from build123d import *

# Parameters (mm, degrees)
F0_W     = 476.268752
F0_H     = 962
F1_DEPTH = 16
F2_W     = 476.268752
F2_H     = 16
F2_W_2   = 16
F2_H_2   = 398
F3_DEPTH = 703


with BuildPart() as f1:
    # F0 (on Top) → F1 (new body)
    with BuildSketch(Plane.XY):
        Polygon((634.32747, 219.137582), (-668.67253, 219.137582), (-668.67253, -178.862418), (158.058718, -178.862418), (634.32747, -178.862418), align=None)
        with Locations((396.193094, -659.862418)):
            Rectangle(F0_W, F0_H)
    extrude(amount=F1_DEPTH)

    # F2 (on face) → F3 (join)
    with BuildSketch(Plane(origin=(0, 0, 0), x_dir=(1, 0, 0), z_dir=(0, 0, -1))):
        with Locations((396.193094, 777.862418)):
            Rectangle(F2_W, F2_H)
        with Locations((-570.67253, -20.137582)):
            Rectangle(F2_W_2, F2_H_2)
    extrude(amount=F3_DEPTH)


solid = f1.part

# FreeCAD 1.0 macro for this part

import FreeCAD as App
import Part
import Sketcher
from FreeCAD import Vector
Q = App.Units.Quantity


def add_polygon(sketch, points):
    """Adds a closed chain of lines whose ends are joined by coincident constraints."""
    first, n = sketch.GeometryCount, len(points)
    for a, b in zip(points, points[1:] + points[:1]):
        sketch.addGeometry(Part.LineSegment(App.Vector(*a, 0), App.Vector(*b, 0)), False)
    for i in range(n):
        sketch.addConstraint(Sketcher.Constraint("Coincident", first + i, 2, first + (i + 1) % n, 1))

doc = App.newDocument("Part")
body = doc.addObject("PartDesign::Body", "Body")

# Sketch on XY plane
sketch1 = doc.addObject("Sketcher::SketchObject", "Sketch")
body.addObject(sketch1)
sketch1.AttachmentSupport = (doc.XY_Plane, [""])
sketch1.MapMode = "FlatFace"
add_polygon(sketch1, [(634, 219), (-669, 219), (-669, -179), (158, -179), (158, -1141), (634, -1141)])  # lines 0-5
sketch1.addConstraint([
    Sketcher.Constraint("Horizontal", 0),
    Sketcher.Constraint("Vertical", 1),
    Sketcher.Constraint("Horizontal", 2),
    Sketcher.Constraint("Vertical", 3),
    Sketcher.Constraint("Horizontal", 4),
    Sketcher.Constraint("Vertical", 5),
    Sketcher.Constraint("DistanceX", 0, 2, 0, 1, Q("1303 mm")),
    Sketcher.Constraint("DistanceY", 1, 2, 1, 1, Q("398 mm")),
    Sketcher.Constraint("DistanceY", 3, 2, 3, 1, Q("962 mm")),
    Sketcher.Constraint("DistanceX", 2, 1, 2, 2, Q("826.731248 mm")),
    Sketcher.Constraint("DistanceX", 0, 2, -1, 1, Q("668.67253 mm")),
    Sketcher.Constraint("DistanceY", -1, 1, 0, 2, Q("219.137582 mm")),
])
pad1 = doc.addObject("PartDesign::Pad", "Pad")
body.addObject(pad1)
pad1.Profile = sketch1
pad1.Length = 16

# Sketch on XY plane
sketch2 = doc.addObject("Sketcher::SketchObject", "Sketch001")
body.addObject(sketch2)
sketch2.AttachmentSupport = (doc.XY_Plane, [""])
sketch2.MapMode = "FlatFace"
add_polygon(sketch2, [(158, -786), (158, -770), (634, -770), (634, -786)])  # lines 0-3
add_polygon(sketch2, [(-579, -179), (-579, 219), (-563, 219), (-563, -179)])  # lines 4-7
sketch2.addConstraint([
    Sketcher.Constraint("Vertical", 0),
    Sketcher.Constraint("Horizontal", 1),
    Sketcher.Constraint("Vertical", 2),
    Sketcher.Constraint("Horizontal", 3),
    Sketcher.Constraint("Vertical", 4),
    Sketcher.Constraint("Horizontal", 5),
    Sketcher.Constraint("Vertical", 6),
    Sketcher.Constraint("Horizontal", 7),
    Sketcher.Constraint("Equal", 7, 0),
    Sketcher.Constraint("DistanceX", 5, 1, 5, 2, Q("16 mm")),
    Sketcher.Constraint("DistanceY", 4, 1, 4, 2, Q("398 mm")),
    Sketcher.Constraint("DistanceY", 0, 2, 4, 2, Q("989 mm")),
    Sketcher.Constraint("DistanceX", 4, 2, 1, 2, Q("1213 mm")),
    Sketcher.Constraint("DistanceX", 1, 1, 1, 2, Q("476.268752 mm")),
    Sketcher.Constraint("DistanceX", -1, 1, 0, 2, Q("158.058718 mm")),
    Sketcher.Constraint("DistanceY", 0, 2, -1, 1, Q("769.862418 mm")),
])
pad2 = doc.addObject("PartDesign::Pad", "Pad001")
body.addObject(pad2)
pad2.Profile = sketch2
pad2.Length = 703
pad2.Reversed = True

doc.recompute()
